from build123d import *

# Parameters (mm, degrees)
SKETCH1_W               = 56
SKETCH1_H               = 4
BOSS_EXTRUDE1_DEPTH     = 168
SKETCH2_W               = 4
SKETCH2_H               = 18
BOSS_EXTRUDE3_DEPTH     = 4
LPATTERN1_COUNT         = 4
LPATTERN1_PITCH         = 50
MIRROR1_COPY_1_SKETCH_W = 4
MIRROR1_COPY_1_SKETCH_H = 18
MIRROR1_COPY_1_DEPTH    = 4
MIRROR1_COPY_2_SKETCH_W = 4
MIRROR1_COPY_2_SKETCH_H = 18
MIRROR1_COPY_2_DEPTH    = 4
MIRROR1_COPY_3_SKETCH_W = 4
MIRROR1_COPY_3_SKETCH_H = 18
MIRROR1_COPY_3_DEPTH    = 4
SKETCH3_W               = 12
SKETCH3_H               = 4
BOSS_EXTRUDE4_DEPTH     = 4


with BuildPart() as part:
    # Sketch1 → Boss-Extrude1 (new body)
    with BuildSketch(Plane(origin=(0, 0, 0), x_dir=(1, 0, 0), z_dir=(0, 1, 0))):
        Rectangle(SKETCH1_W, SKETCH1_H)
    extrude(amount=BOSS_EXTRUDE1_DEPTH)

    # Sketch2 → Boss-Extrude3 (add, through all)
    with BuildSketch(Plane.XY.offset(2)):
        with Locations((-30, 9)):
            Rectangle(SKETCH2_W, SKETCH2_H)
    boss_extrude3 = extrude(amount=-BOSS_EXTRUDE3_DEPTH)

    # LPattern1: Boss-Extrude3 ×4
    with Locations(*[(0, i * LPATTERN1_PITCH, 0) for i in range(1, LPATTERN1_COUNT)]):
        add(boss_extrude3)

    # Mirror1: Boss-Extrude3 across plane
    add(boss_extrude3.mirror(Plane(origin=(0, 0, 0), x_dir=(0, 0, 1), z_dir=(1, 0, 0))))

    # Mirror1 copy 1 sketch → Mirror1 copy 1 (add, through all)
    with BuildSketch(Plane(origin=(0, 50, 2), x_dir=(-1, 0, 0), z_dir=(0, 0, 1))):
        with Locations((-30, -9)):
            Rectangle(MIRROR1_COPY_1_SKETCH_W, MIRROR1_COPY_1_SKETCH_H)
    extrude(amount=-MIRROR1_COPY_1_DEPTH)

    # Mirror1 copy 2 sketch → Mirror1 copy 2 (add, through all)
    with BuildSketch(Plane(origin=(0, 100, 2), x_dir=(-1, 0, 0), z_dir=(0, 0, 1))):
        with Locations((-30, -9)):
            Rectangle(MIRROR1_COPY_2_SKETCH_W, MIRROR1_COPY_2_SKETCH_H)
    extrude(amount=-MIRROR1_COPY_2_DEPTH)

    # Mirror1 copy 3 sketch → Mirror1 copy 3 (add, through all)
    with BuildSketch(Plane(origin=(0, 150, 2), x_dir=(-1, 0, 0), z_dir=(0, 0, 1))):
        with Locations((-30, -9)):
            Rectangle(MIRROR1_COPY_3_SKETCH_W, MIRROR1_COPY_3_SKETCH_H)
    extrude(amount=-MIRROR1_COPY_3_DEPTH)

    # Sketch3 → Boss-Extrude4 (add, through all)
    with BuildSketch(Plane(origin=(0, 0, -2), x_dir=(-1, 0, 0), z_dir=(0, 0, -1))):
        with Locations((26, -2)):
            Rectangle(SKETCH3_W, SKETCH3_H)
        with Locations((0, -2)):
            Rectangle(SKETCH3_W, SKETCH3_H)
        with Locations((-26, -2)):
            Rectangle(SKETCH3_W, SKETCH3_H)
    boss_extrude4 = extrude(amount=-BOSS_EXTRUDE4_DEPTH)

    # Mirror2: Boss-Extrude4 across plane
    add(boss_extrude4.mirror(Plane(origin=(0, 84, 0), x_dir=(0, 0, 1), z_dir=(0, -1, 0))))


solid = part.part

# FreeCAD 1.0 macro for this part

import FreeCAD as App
import Part
import Sketcher
Q = App.Units.Quantity


def add_polygon(sketch, points):
    """Adds a closed chain of lines whose ends are joined by coincident constraints."""
    first, n = sketch.GeometryCount, len(points)
    for a, b in zip(points, points[1:] + points[:1]):
        sketch.addGeometry(Part.LineSegment(App.Vector(*a, 0), App.Vector(*b, 0)), False)
    for i in range(n):
        sketch.addConstraint(Sketcher.Constraint("Coincident", first + i, 2, first + (i + 1) % n, 1))

doc = App.newDocument("Part")
body = doc.addObject("PartDesign::Body", "Body")

sketch1 = body.newObject("Sketcher::SketchObject", "Sketch")
sketch1.AttachmentSupport = (doc.getObject("XZ_Plane"), [""])
sketch1.MapMode = "FlatFace"
add_polygon(sketch1, [(-28, -2), (-28, 2), (28, 2), (28, -2)])
sketch1.addConstraint([
    Sketcher.Constraint("Vertical", 0),
    Sketcher.Constraint("Horizontal", 1),
    Sketcher.Constraint("Vertical", 2),
    Sketcher.Constraint("Horizontal", 3),
    Sketcher.Constraint("Symmetric", 0, 2, 2, 2, -1, 1),
    Sketcher.Constraint("DistanceX", 1, 1, 1, 2, Q("56 mm")),
    Sketcher.Constraint("DistanceY", 0, 1, 0, 2, Q("4 mm")),
])
pad1 = body.newObject("PartDesign::Pad", "Pad")
pad1.Profile = sketch1
pad1.Length = 168
pad1.Reversed = True

sketch2 = body.newObject("Sketcher::SketchObject", "Sketch001")
sketch2.AttachmentSupport = (doc.getObject("XY_Plane"), [""])
sketch2.MapMode = "FlatFace"
sketch2.AttachmentOffset = App.Placement(App.Vector(0, 0, 2), App.Rotation())
add_polygon(sketch2, [(-32, 18), (-32, 0), (-28, 0), (-28, 18)])
sketch2.addConstraint([
    Sketcher.Constraint("Vertical", 0),
    Sketcher.Constraint("Horizontal", 1),
    Sketcher.Constraint("Vertical", 2),
    Sketcher.Constraint("Horizontal", 3),
    Sketcher.Constraint("PointOnObject", 0, 2, -1),
    Sketcher.Constraint("DistanceX", 1, 1, 1, 2, Q("4 mm")),
    Sketcher.Constraint("DistanceY", 0, 2, 0, 1, Q("18 mm")),
    Sketcher.Constraint("DistanceX", 0, 2, -1, 1, Q("32 mm")),
])
pad2 = body.newObject("PartDesign::Pad", "Pad001")
pad2.Profile = sketch2
pad2.Length = 4
pad2.Reversed = True
doc.recompute()

linearpattern = body.newObject("PartDesign::LinearPattern", "LinearPattern")
linearpattern.Originals = [pad2]
linearpattern.Direction = (doc.getObject("Y_Axis"), [""])
linearpattern.Mode = "offset"
linearpattern.Offset = 50
linearpattern.Occurrences = 4
body.Tip = linearpattern
doc.recompute()

mirrored = body.newObject("PartDesign::Mirrored", "Mirrored")
mirrored.Originals = [pad2]
mirrored.MirrorPlane = (doc.getObject("YZ_Plane"), [""])
body.Tip = mirrored

sketch3 = body.newObject("Sketcher::SketchObject", "Sketch002")
sketch3.AttachmentSupport = (doc.getObject("XY_Plane"), [""])
sketch3.MapMode = "FlatFace"
sketch3.AttachmentOffset = App.Placement(App.Vector(0, 0, 2), App.Rotation())
add_polygon(sketch3, [(32, 50), (32, 68), (28, 68), (28, 50)])
sketch3.addConstraint([
    Sketcher.Constraint("Vertical", 0),
    Sketcher.Constraint("Horizontal", 1),
    Sketcher.Constraint("Vertical", 2),
    Sketcher.Constraint("Horizontal", 3),
    Sketcher.Constraint("DistanceX", 1, 2, 1, 1, Q("4 mm")),
    Sketcher.Constraint("DistanceY", 0, 1, 0, 2, Q("18 mm")),
    Sketcher.Constraint("DistanceX", -1, 1, 0, 2, Q("32 mm")),
    Sketcher.Constraint("DistanceY", -1, 1, 0, 2, Q("68 mm")),
])
pad3 = body.newObject("PartDesign::Pad", "Pad002")
pad3.Profile = sketch3
pad3.Length = 4
pad3.Reversed = True

sketch4 = body.newObject("Sketcher::SketchObject", "Sketch003")
sketch4.AttachmentSupport = (doc.getObject("XY_Plane"), [""])
sketch4.MapMode = "FlatFace"
sketch4.AttachmentOffset = App.Placement(App.Vector(0, 0, 2), App.Rotation())
add_polygon(sketch4, [(32, 100), (32, 118), (28, 118), (28, 100)])
sketch4.addConstraint([
    Sketcher.Constraint("Vertical", 0),
    Sketcher.Constraint("Horizontal", 1),
    Sketcher.Constraint("Vertical", 2),
    Sketcher.Constraint("Horizontal", 3),
    Sketcher.Constraint("DistanceX", 1, 2, 1, 1, Q("4 mm")),
    Sketcher.Constraint("DistanceY", 0, 1, 0, 2, Q("18 mm")),
    Sketcher.Constraint("DistanceX", -1, 1, 0, 2, Q("32 mm")),
    Sketcher.Constraint("DistanceY", -1, 1, 0, 2, Q("118 mm")),
])
pad4 = body.newObject("PartDesign::Pad", "Pad003")
pad4.Profile = sketch4
pad4.Length = 4
pad4.Reversed = True

sketch5 = body.newObject("Sketcher::SketchObject", "Sketch004")
sketch5.AttachmentSupport = (doc.getObject("XY_Plane"), [""])
sketch5.MapMode = "FlatFace"
sketch5.AttachmentOffset = App.Placement(App.Vector(0, 0, 2), App.Rotation())
add_polygon(sketch5, [(32, 150), (32, 168), (28, 168), (28, 150)])
sketch5.addConstraint([
    Sketcher.Constraint("Vertical", 0),
    Sketcher.Constraint("Horizontal", 1),
    Sketcher.Constraint("Vertical", 2),
    Sketcher.Constraint("Horizontal", 3),
    Sketcher.Constraint("DistanceX", 1, 2, 1, 1, Q("4 mm")),
    Sketcher.Constraint("DistanceY", 0, 1, 0, 2, Q("18 mm")),
    Sketcher.Constraint("DistanceX", -1, 1, 0, 2, Q("32 mm")),
    Sketcher.Constraint("DistanceY", -1, 1, 0, 2, Q("168 mm")),
])
pad5 = body.newObject("PartDesign::Pad", "Pad004")
pad5.Profile = sketch5
pad5.Length = 4
pad5.Reversed = True

sketch6 = body.newObject("Sketcher::SketchObject", "Sketch005")
sketch6.AttachmentSupport = (doc.getObject("XY_Plane"), [""])
sketch6.MapMode = "FlatFace"
sketch6.AttachmentOffset = App.Placement(App.Vector(0, 0, -2), App.Rotation())
add_polygon(sketch6, [(-20, 0), (-20, -4), (-32, -4), (-32, 0)])
add_polygon(sketch6, [(6, 0), (6, -4), (-6, -4), (-6, 0)])
add_polygon(sketch6, [(32, 0), (32, -4), (20, -4), (20, 0)])
sketch6.addConstraint([
    Sketcher.Constraint("Vertical", 0),
    Sketcher.Constraint("Horizontal", 1),
    Sketcher.Constraint("Vertical", 2),
    Sketcher.Constraint("Horizontal", 3),
    Sketcher.Constraint("Vertical", 4),
    Sketcher.Constraint("Horizontal", 5),
    Sketcher.Constraint("Vertical", 6),
    Sketcher.Constraint("Horizontal", 7),
    Sketcher.Constraint("Vertical", 8),
    Sketcher.Constraint("Horizontal", 9),
    Sketcher.Constraint("Vertical", 10),
    Sketcher.Constraint("Horizontal", 11),
    Sketcher.Constraint("Symmetric", 6, 2, 7, 2, -1, 1),
    Sketcher.Constraint("Symmetric", 3, 2, 10, 2, -1, 1),
    Sketcher.Constraint("Symmetric", 1, 2, 8, 2, -2),
    Sketcher.Constraint("PointOnObject", 2, 2, -1),
    Sketcher.Constraint("Horizontal", 1, 2, 4, 2),
    Sketcher.Constraint("Equal", 3, 5),
    Sketcher.Constraint("DistanceX", 1, 2, 1, 1, Q("12 mm")),
    Sketcher.Constraint("DistanceY", 0, 2, 0, 1, Q("4 mm")),
    Sketcher.Constraint("DistanceX", 0, 2, -1, 1, Q("20 mm")),
])
pad6 = body.newObject("PartDesign::Pad", "Pad005")
pad6.Profile = sketch6
pad6.Length = 4
doc.recompute()

datumplane = body.newObject("PartDesign::Plane", "DatumPlane")
datumplane.AttachmentSupport = (doc.getObject("XZ_Plane"), [""])
datumplane.MapMode = "FlatFace"
datumplane.AttachmentOffset = App.Placement(App.Vector(0, 0, -84), App.Rotation())
mirrored2 = body.newObject("PartDesign::Mirrored", "Mirrored001")
mirrored2.Originals = [pad6]
mirrored2.MirrorPlane = (datumplane, [""])
body.Tip = mirrored2

doc.recompute()
